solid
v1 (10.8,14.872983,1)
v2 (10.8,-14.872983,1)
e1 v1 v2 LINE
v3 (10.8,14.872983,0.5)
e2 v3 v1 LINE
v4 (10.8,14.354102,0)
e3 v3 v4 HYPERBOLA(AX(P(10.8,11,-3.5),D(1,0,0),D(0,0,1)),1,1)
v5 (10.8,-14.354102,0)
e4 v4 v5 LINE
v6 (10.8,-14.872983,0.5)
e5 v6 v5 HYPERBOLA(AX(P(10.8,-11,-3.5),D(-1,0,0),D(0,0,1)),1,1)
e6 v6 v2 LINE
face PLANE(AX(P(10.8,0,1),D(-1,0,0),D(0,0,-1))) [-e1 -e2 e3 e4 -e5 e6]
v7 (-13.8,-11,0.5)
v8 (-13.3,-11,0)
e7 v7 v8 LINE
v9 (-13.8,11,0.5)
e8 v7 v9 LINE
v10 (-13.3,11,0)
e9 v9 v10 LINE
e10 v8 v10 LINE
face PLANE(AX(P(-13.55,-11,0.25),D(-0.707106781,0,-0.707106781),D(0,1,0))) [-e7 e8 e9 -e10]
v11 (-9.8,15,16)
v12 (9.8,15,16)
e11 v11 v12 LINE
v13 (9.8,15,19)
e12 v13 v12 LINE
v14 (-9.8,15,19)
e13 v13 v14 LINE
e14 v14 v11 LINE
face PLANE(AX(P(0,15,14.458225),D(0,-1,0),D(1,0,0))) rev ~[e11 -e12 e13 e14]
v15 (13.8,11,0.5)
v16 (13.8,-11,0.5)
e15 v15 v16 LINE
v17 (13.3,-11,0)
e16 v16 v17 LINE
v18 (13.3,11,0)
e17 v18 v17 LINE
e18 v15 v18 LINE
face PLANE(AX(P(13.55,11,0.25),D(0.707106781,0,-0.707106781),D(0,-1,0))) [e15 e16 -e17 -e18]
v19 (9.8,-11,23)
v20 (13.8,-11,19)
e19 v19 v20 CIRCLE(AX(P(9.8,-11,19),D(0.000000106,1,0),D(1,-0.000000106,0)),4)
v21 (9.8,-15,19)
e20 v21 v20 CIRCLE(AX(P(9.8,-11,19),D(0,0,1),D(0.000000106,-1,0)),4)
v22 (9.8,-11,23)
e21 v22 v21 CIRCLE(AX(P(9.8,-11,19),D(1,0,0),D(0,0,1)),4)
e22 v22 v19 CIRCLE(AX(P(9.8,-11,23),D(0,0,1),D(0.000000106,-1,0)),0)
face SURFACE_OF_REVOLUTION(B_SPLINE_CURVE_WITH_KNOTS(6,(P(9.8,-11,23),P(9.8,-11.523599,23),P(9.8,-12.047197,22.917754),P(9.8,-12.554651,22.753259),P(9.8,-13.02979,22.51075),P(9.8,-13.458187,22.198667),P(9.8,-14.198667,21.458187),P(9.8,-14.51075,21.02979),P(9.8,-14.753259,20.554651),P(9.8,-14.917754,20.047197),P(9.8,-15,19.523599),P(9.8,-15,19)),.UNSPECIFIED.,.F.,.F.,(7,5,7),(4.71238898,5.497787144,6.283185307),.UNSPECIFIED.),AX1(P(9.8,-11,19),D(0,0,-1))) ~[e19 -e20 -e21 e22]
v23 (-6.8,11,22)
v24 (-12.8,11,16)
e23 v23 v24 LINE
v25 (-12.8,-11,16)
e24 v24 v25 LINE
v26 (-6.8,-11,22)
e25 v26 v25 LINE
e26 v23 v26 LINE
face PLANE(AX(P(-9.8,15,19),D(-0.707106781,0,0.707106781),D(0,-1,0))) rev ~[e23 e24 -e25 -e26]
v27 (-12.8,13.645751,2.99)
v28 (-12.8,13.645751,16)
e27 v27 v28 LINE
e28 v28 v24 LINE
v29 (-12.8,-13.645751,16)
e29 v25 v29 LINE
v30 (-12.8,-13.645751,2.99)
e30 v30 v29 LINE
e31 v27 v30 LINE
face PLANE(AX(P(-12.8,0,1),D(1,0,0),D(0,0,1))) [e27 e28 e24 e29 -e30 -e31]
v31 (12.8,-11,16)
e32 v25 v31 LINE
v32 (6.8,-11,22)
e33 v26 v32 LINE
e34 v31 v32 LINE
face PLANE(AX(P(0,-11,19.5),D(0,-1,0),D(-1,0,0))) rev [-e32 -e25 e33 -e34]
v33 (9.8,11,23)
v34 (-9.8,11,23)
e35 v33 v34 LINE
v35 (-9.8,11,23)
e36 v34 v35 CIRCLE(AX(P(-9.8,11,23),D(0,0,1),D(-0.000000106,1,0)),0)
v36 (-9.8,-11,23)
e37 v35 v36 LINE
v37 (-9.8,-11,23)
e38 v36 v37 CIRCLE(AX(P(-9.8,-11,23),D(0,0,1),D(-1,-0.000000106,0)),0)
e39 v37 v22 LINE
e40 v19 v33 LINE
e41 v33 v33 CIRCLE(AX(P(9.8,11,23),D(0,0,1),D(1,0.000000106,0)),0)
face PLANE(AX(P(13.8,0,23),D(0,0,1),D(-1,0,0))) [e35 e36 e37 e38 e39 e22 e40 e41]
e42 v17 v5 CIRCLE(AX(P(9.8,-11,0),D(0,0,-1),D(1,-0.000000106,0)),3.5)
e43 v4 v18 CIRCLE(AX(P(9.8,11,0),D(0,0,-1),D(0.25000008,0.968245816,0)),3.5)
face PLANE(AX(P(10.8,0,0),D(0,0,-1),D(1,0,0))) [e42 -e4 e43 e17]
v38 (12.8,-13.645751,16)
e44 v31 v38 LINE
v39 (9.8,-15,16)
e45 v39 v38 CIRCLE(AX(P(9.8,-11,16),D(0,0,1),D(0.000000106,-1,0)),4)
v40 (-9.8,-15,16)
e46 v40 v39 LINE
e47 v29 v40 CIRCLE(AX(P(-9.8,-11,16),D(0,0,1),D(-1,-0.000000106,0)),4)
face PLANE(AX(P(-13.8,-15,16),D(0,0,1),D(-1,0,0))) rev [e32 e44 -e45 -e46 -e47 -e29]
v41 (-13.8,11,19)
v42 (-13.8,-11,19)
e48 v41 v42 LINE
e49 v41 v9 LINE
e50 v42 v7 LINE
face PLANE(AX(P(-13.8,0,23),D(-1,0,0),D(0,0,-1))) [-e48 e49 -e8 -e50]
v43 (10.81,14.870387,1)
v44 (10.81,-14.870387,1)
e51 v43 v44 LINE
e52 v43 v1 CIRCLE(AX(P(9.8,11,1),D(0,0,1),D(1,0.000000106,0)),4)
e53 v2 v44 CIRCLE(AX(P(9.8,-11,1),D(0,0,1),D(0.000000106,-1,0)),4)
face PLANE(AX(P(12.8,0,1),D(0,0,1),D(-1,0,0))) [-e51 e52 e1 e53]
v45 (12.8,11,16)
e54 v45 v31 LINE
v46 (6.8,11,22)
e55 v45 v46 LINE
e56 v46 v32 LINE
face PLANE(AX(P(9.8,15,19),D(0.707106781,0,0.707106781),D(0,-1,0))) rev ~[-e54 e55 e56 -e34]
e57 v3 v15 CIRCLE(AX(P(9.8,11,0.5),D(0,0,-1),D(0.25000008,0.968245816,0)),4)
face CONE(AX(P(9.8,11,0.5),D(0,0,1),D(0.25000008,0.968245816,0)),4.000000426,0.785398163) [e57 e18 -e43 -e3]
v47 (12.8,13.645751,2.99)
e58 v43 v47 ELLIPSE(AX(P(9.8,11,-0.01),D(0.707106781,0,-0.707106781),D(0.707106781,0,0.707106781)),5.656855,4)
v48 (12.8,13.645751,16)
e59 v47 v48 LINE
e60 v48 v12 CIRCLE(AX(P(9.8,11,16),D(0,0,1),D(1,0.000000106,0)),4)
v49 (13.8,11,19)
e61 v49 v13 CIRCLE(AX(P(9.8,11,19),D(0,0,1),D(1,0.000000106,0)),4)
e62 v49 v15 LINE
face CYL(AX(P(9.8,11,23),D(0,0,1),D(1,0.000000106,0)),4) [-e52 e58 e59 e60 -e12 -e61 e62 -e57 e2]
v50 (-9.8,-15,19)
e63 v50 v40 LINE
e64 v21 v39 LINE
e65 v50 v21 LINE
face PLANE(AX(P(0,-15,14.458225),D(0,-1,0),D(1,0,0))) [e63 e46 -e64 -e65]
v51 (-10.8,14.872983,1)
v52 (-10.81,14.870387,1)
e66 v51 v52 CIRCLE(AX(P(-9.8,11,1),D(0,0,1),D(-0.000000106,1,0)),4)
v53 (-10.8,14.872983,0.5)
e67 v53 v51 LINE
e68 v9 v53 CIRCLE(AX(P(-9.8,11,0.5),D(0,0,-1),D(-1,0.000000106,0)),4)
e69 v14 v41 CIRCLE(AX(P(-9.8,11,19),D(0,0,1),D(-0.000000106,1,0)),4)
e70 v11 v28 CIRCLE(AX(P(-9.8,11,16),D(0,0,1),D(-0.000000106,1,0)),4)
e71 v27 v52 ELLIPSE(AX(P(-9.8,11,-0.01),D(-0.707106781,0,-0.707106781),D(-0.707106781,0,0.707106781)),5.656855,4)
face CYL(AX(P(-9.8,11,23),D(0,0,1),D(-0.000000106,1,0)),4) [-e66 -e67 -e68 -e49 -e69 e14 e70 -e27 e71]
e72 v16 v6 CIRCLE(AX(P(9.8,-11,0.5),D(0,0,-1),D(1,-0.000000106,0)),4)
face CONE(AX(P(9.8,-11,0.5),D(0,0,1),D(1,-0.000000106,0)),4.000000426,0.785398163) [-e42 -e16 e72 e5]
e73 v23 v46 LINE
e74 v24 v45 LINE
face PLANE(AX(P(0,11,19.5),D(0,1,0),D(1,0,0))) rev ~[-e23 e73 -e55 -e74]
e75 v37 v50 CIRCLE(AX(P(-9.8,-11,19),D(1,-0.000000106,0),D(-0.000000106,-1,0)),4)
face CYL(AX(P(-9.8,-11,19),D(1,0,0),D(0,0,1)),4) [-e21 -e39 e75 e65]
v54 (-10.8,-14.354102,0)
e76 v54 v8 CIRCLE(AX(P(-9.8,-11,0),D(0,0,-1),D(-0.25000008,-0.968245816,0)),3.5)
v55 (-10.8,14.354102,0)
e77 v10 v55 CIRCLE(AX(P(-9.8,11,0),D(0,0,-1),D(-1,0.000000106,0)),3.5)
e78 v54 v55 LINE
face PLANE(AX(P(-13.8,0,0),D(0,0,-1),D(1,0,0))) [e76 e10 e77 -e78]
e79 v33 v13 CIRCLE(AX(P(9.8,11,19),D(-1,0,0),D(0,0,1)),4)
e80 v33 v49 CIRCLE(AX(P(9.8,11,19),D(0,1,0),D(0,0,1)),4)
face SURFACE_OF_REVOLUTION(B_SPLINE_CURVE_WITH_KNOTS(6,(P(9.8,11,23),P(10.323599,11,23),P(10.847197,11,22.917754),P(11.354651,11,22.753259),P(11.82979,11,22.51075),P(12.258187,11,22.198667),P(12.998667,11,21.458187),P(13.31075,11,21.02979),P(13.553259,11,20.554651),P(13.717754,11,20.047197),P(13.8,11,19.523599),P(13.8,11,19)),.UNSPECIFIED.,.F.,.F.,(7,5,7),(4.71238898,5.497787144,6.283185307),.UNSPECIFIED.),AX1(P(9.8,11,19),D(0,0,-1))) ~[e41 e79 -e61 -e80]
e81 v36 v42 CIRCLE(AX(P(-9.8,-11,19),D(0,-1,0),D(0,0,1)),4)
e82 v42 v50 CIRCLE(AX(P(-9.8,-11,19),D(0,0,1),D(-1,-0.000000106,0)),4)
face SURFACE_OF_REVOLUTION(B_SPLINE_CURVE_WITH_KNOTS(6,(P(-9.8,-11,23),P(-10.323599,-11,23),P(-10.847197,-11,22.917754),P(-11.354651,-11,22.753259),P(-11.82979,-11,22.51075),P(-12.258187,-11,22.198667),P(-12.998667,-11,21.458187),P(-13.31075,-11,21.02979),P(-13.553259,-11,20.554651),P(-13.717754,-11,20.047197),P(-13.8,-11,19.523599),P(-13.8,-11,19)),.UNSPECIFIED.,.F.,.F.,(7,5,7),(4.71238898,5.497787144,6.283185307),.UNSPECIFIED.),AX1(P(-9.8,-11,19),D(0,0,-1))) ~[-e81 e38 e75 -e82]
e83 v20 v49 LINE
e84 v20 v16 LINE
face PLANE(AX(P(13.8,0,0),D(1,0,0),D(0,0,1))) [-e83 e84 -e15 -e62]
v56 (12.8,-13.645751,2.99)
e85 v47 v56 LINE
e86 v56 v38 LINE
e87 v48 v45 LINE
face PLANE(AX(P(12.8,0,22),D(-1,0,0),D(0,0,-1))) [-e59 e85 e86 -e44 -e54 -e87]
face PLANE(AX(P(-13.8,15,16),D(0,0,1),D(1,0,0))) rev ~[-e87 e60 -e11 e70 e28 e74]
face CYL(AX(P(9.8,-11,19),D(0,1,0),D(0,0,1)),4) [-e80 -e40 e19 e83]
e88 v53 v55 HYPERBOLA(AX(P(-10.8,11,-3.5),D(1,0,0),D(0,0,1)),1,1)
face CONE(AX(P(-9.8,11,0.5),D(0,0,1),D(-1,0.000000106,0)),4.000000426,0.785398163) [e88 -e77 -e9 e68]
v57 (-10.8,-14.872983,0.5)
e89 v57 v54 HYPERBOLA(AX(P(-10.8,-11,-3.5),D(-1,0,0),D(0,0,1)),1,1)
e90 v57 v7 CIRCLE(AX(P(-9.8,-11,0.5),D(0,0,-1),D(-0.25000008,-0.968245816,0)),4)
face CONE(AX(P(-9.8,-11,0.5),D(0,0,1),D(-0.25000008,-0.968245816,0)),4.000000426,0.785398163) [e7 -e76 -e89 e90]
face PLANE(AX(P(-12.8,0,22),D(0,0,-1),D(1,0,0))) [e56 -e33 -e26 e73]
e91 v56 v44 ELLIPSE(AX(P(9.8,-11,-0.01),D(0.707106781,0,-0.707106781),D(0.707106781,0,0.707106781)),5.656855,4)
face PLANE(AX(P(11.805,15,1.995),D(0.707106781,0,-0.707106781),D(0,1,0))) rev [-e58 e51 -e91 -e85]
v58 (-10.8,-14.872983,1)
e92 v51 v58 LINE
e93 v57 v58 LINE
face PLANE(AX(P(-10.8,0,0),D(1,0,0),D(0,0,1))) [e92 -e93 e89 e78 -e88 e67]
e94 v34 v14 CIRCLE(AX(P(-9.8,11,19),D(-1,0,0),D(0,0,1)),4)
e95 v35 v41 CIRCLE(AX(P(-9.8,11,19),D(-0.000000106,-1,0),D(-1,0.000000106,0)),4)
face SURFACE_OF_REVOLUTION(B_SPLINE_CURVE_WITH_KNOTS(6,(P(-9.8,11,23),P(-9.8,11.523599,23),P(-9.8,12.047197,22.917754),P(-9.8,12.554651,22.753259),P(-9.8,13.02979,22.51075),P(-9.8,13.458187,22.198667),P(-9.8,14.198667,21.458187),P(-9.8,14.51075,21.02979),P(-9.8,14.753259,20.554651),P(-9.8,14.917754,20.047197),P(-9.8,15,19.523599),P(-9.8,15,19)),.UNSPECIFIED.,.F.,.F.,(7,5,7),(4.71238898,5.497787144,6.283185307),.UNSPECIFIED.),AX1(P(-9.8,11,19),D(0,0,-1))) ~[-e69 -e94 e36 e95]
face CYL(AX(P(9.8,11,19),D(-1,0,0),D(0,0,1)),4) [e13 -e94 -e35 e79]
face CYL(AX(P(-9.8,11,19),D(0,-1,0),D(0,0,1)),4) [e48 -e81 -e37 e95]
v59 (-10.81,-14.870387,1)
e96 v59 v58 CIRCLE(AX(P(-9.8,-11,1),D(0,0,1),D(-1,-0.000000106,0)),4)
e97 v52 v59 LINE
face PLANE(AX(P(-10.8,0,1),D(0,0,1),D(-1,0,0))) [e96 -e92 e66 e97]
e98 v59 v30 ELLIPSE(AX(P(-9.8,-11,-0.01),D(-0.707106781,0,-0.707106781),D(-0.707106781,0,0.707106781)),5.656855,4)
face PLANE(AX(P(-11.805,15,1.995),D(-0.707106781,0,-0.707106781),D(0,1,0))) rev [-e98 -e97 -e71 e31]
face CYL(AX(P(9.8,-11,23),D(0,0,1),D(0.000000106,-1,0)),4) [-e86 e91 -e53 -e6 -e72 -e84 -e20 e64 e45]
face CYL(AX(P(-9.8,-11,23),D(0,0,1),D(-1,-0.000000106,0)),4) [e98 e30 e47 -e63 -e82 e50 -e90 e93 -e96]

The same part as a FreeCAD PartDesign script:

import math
import FreeCAD as App
import Part
import Sketcher

V = App.Vector


def edges_at(feature, points):
    """Names of the edges that pass closest to the given points."""
    edges = feature.Shape.Edges
    near = lambda p: min(range(len(edges)), key=lambda i: edges[i].distToShape(Part.Vertex(*p))[0])
    return sorted({f"Edge{near(p) + 1}" for p in points})


def add_polygon(sketch, points):
    """Adds a closed chain of lines whose ends are joined by coincident constraints."""
    first, n = sketch.GeometryCount, len(points)
    for a, b in zip(points, points[1:] + points[:1]):
        sketch.addGeometry(Part.LineSegment(App.Vector(*a, 0), App.Vector(*b, 0)), False)
    for i in range(n):
        sketch.addConstraint(Sketcher.Constraint("Coincident", first + i, 2, first + (i + 1) % n, 1))

doc = App.newDocument("Part")
params = doc.addObject("Spreadsheet::Sheet", "Params")
for row, (alias, value) in enumerate([
    ("sketch1_width", "2 mm"),
    ("sketch1_width2", "3 mm"),
    ("sketch1_height", "1 mm"),
    ("sketch1_height2", "21 mm"),
    ("sketch1_height3", "23 mm"),
    ("pad1_length", "30 mm"),
    ("chamfer_size", "1.99 mm"),
    ("chamfer2_size", "6 mm"),
    ("sketch2_height", "7 mm"),
    ("sketch2_width", "27.6 mm"),
    ("pad2_length", "4 mm"),
    ("sketch3_radius", "4 mm"),
    ("sketch3_height", "34 mm"),
    ("sketch3_height2", "22 mm"),
    ("sketch3_width", "31.6 mm"),
    ("sketch3_width2", "19.6 mm"),
    ("fillet_radius", "4 mm"),
    ("chamfer3_size", "0.5 mm"),
], start=1):
    params.set(f"A{row}", alias)
    params.set(f"B{row}", "=" + value)
    params.setAlias(f"B{row}", alias)

body = doc.addObject("PartDesign::Body", "Body")

# Sketch on XZ plane
sketch1 = body.newObject("Sketcher::SketchObject", "Sketch")
sketch1.AttachmentSupport = (doc.getObject("XZ_Plane"), [""])
sketch1.MapMode = "FlatFace"
add_polygon(sketch1, [(-10.8, 0), (-10.8, 1), (-12.8, 1), (-12.8, 22), (12.8, 22), (12.8, 1), (10.8, 1), (10.8, 0), (13.8, 0), (13.8, 23), (-13.8, 23), (-13.8, 0)])  # lines 0-11
sketch1.addConstraint(Sketcher.Constraint("Vertical", 0))
sketch1.addConstraint(Sketcher.Constraint("Horizontal", 1))
sketch1.addConstraint(Sketcher.Constraint("Vertical", 2))
sketch1.addConstraint(Sketcher.Constraint("Horizontal", 3))
sketch1.addConstraint(Sketcher.Constraint("Vertical", 4))
sketch1.addConstraint(Sketcher.Constraint("Horizontal", 5))
sketch1.addConstraint(Sketcher.Constraint("Vertical", 6))
sketch1.addConstraint(Sketcher.Constraint("Horizontal", 7))
sketch1.addConstraint(Sketcher.Constraint("Vertical", 8))
sketch1.addConstraint(Sketcher.Constraint("Horizontal", 9))
sketch1.addConstraint(Sketcher.Constraint("Vertical", 10))
sketch1.addConstraint(Sketcher.Constraint("Horizontal", 11))
sketch1.addConstraint(Sketcher.Constraint("Symmetric", 7, 2, 10, 2, -1, 1))
sketch1.addConstraint(Sketcher.Constraint("Symmetric", 1, 2, 4, 2, -2))
sketch1.addConstraint(Sketcher.Constraint("Symmetric", 6, 2, 11, 2, -2))
sketch1.addConstraint(Sketcher.Constraint("DistanceX", 1, 2, 1, 1, 2.0))
sketch1.addConstraint(Sketcher.Constraint("DistanceX", 7, 1, 7, 2, 3.0))
sketch1.addConstraint(Sketcher.Constraint("DistanceY", 0, 1, 0, 2, 1.0))
sketch1.addConstraint(Sketcher.Constraint("DistanceY", 2, 1, 2, 2, 21.0))
sketch1.addConstraint(Sketcher.Constraint("DistanceY", 8, 1, 8, 2, 23.0))
sketch1.addConstraint(Sketcher.Constraint("DistanceX", 3, 1, 3, 2, 25.6))
sketch1.setExpression("Constraints[27]", "Params.sketch1_width")
sketch1.setExpression("Constraints[28]", "Params.sketch1_width2")
sketch1.setExpression("Constraints[29]", "Params.sketch1_height")
sketch1.setExpression("Constraints[30]", "Params.sketch1_height2")
sketch1.setExpression("Constraints[31]", "Params.sketch1_height3")
pad1 = body.newObject("PartDesign::Pad", "Pad")
pad1.Profile = sketch1
pad1.setExpression("Length", "Params.pad1_length")
pad1.Midplane = True
doc.recompute()

chamfer = body.newObject("PartDesign::Chamfer", "Chamfer")
chamfer.Base = (pad1, edges_at(pad1, [(-12.8, 0, 1), (12.8, 0, 1)]))
chamfer.setExpression("Size", "Params.chamfer_size")
doc.recompute()

chamfer2 = body.newObject("PartDesign::Chamfer", "Chamfer001")
chamfer2.Base = (chamfer, edges_at(chamfer, [(12.8, 0, 22), (-12.8, 0, 22)]))
chamfer2.setExpression("Size", "Params.chamfer2_size")

# Sketch on XZ plane
sketch2 = body.newObject("Sketcher::SketchObject", "Sketch001")
sketch2.AttachmentSupport = (doc.getObject("XZ_Plane"), [""])
sketch2.MapMode = "FlatFace"
sketch2.AttachmentOffset = App.Placement(V(0, 0, -15), App.Rotation())
add_polygon(sketch2, [(-14, 16), (-14, 23), (14, 23), (14, 16)])  # lines 0-3
sketch2.addConstraint(Sketcher.Constraint("Vertical", 0))
sketch2.addConstraint(Sketcher.Constraint("Horizontal", 1))
sketch2.addConstraint(Sketcher.Constraint("Vertical", 2))
sketch2.addConstraint(Sketcher.Constraint("Horizontal", 3))
sketch2.addConstraint(Sketcher.Constraint("DistanceY", 0, 1, 0, 2, 7.0))
sketch2.addConstraint(Sketcher.Constraint("DistanceX", 1, 1, 1, 2, 27.6))
sketch2.addConstraint(Sketcher.Constraint("DistanceY", -1, 1, 0, 2, 23.0))
sketch2.addConstraint(Sketcher.Constraint("DistanceX", 0, 2, -1, 1, 13.8))
sketch2.setExpression("Constraints[8]", "Params.sketch2_height")
sketch2.setExpression("Constraints[9]", "Params.sketch2_width")
pad2 = body.newObject("PartDesign::Pad", "Pad001")
pad2.Profile = sketch2
pad2.setExpression("Length", "Params.pad2_length")
doc.recompute()

mirrored = body.newObject("PartDesign::Mirrored", "Mirrored")
mirrored.Originals = [pad2]
mirrored.MirrorPlane = (doc.getObject("XZ_Plane"), [""])
body.Tip = mirrored

# Sketch on XY plane
sketch3 = body.newObject("Sketcher::SketchObject", "Sketch002")
sketch3.AttachmentSupport = (doc.getObject("XY_Plane"), [""])
sketch3.MapMode = "FlatFace"
sketch3.AttachmentOffset = App.Placement(V(0, 0, 23), App.Rotation())
add_polygon(sketch3, [(15.8, -17), (15.8, 17), (-15.8, 17), (-15.8, -17)])  # lines 0-3
sketch3.addGeometry(Part.LineSegment(V(13.8, 11, 0), V(13.8, -11, 0)), False)  # 4
sketch3.addGeometry(Part.ArcOfCircle(Part.Circle(V(9.8, -11, 0), V(0, 0, 1), 4), math.radians(-90), math.radians(0)), False)  # 5
sketch3.addGeometry(Part.LineSegment(V(9.8, -15, 0), V(-9.8, -15, 0)), False)  # 6
sketch3.addGeometry(Part.ArcOfCircle(Part.Circle(V(-9.8, -11, 0), V(0, 0, 1), 4), math.radians(-180), math.radians(-90)), False)  # 7
sketch3.addGeometry(Part.LineSegment(V(-13.8, -11, 0), V(-13.8, 11, 0)), False)  # 8
sketch3.addGeometry(Part.ArcOfCircle(Part.Circle(V(-9.8, 11, 0), V(0, 0, 1), 4), math.radians(90), math.radians(180)), False)  # 9
sketch3.addGeometry(Part.LineSegment(V(-9.8, 15, 0), V(9.8, 15, 0)), False)  # 10
sketch3.addGeometry(Part.ArcOfCircle(Part.Circle(V(9.8, 11, 0), V(0, 0, 1), 4), math.radians(0), math.radians(90)), False)  # 11
sketch3.addConstraint(Sketcher.Constraint("Tangent", 4, 2, 5, 2))
sketch3.addConstraint(Sketcher.Constraint("Tangent", 5, 1, 6, 1))
sketch3.addConstraint(Sketcher.Constraint("Tangent", 6, 2, 7, 2))
sketch3.addConstraint(Sketcher.Constraint("Tangent", 7, 1, 8, 1))
sketch3.addConstraint(Sketcher.Constraint("Tangent", 8, 2, 9, 2))
sketch3.addConstraint(Sketcher.Constraint("Tangent", 9, 1, 10, 1))
sketch3.addConstraint(Sketcher.Constraint("Tangent", 10, 2, 11, 2))
sketch3.addConstraint(Sketcher.Constraint("Tangent", 11, 1, 4, 1))
sketch3.addConstraint(Sketcher.Constraint("Vertical", 0))
sketch3.addConstraint(Sketcher.Constraint("Horizontal", 1))
sketch3.addConstraint(Sketcher.Constraint("Vertical", 2))
sketch3.addConstraint(Sketcher.Constraint("Horizontal", 3))
sketch3.addConstraint(Sketcher.Constraint("Vertical", 4))
sketch3.addConstraint(Sketcher.Constraint("Horizontal", 6))
sketch3.addConstraint(Sketcher.Constraint("Vertical", 8))
sketch3.addConstraint(Sketcher.Constraint("Horizontal", 10))
sketch3.addConstraint(Sketcher.Constraint("Equal", 5, 7))
sketch3.addConstraint(Sketcher.Constraint("Equal", 7, 9))
sketch3.addConstraint(Sketcher.Constraint("Equal", 9, 11))
sketch3.addConstraint(Sketcher.Constraint("Symmetric", 5, 3, 9, 3, -1, 1))
sketch3.addConstraint(Sketcher.Constraint("Symmetric", 0, 2, 2, 2, -1, 1))
sketch3.addConstraint(Sketcher.Constraint("Radius", 5, 4.0))
sketch3.addConstraint(Sketcher.Constraint("DistanceY", 0, 1, 0, 2, 34.0))
sketch3.addConstraint(Sketcher.Constraint("DistanceY", 4, 2, 4, 1, 22.0))
sketch3.addConstraint(Sketcher.Constraint("DistanceX", 1, 2, 1, 1, 31.6))
sketch3.addConstraint(Sketcher.Constraint("DistanceX", 6, 2, 6, 1, 19.6))
sketch3.setExpression("Constraints[25]", "Params.sketch3_radius")
sketch3.setExpression("Constraints[26]", "Params.sketch3_height")
sketch3.setExpression("Constraints[27]", "Params.sketch3_height2")
sketch3.setExpression("Constraints[28]", "Params.sketch3_width")
sketch3.setExpression("Constraints[29]", "Params.sketch3_width2")
pocket1 = body.newObject("PartDesign::Pocket", "Pocket")
pocket1.Profile = sketch3
pocket1.Type = "ThroughAll"
doc.recompute()

fillet = body.newObject("PartDesign::Fillet", "Fillet")
fillet.Base = (pocket1, edges_at(pocket1, [
    (0, 15, 23),
    (12.628, 13.828, 23),
    (13.8, 0, 23),
    (12.628, -13.828, 23),
    (0, -15, 23),
    (-12.628, -13.828, 23),
    (-13.8, 0, 23),
    (-12.628, 13.828, 23),
]))
fillet.setExpression("Radius", "Params.fillet_radius")
doc.recompute()

chamfer3 = body.newObject("PartDesign::Chamfer", "Chamfer002")
chamfer3.Base = (fillet, edges_at(fillet, [(13.8, 0, 0), (-13.8, 0, 0)]))
chamfer3.setExpression("Size", "Params.chamfer3_size")

doc.recompute()
